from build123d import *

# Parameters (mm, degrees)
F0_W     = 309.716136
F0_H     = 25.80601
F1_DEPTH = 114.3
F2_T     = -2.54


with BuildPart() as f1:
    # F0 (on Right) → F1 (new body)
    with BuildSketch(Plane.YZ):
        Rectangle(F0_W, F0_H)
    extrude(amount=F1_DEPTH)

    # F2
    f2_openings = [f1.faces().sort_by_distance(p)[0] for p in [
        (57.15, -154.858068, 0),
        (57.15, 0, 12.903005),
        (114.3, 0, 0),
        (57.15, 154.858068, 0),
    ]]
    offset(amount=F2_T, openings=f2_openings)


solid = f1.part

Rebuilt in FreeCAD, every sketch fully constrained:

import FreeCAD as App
import Part
import Sketcher

V = App.Vector
Q = App.Units.Quantity


def faces_at(feature, points):
    """Names of the faces that lie closest to the given points."""
    faces = feature.Shape.Faces
    near = lambda p: min(range(len(faces)), key=lambda i: faces[i].distToShape(Part.Vertex(*p))[0])
    return sorted({f"Face{near(p) + 1}" for p in points})

doc = App.newDocument("Part")
body = doc.addObject("PartDesign::Body", "Body")

# Sketch on YZ plane
sketch1 = body.newObject("Sketcher::SketchObject", "Sketch")
sketch1.AttachmentSupport = (doc.getObject("YZ_Plane"), [""])
sketch1.MapMode = "FlatFace"
sketch1.addGeometry([
    Part.LineSegment(V(-155, 13, 0), V(-155, -13, 0)),
    Part.LineSegment(V(-155, -13, 0), V(155, -13, 0)),
    Part.LineSegment(V(155, -13, 0), V(155, 13, 0)),
    Part.LineSegment(V(155, 13, 0), V(-155, 13, 0)),
], False)
sketch1.addConstraint([
    Sketcher.Constraint("Coincident", 0, 2, 1, 1),
    Sketcher.Constraint("Coincident", 1, 2, 2, 1),
    Sketcher.Constraint("Coincident", 2, 2, 3, 1),
    Sketcher.Constraint("Coincident", 3, 2, 0, 1),
    Sketcher.Constraint("Vertical", 0),
    Sketcher.Constraint("Horizontal", 1),
    Sketcher.Constraint("Vertical", 2),
    Sketcher.Constraint("Horizontal", 3),
    Sketcher.Constraint("Symmetric", 0, 2, 2, 2, -1, 1),
    Sketcher.Constraint("DistanceY", 0, 2, 0, 1, Q("25.80601 mm")),
    Sketcher.Constraint("DistanceX", 1, 1, 1, 2, Q("309.716136 mm")),
])
pad1 = body.newObject("PartDesign::Pad", "Pad")
pad1.Profile = sketch1
pad1.Length = Q("4.5 in")
doc.recompute()

thickness = body.newObject("PartDesign::Thickness", "Thickness")
thickness.Base = (pad1, faces_at(pad1, [
    (57.15, -154.858, 0),
    (57.15, 0, 12.903),
    (114.3, 0, 0),
    (57.15, 154.858, 0),
]))
thickness.Value = Q("0.1 in")
thickness.Reversed = True
thickness.Join = "Arc"

doc.recompute()
